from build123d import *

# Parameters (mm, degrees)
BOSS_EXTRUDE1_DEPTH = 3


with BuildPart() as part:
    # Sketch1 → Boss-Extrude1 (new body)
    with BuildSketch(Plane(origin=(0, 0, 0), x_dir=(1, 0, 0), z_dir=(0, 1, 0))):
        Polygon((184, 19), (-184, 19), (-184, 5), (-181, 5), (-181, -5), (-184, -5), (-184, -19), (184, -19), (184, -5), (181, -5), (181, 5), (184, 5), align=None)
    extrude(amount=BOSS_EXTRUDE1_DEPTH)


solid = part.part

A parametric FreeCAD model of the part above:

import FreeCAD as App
import Part
import Sketcher

V = App.Vector
Q = App.Units.Quantity

doc = App.newDocument("Part")
body = doc.addObject("PartDesign::Body", "Body")

# Sketch on XZ plane
sketch1 = doc.addObject("Sketcher::SketchObject", "Sketch")
body.addObject(sketch1)
sketch1.AttachmentSupport = (doc.XZ_Plane, [""])
sketch1.MapMode = "FlatFace"
sketch1.addGeometry(Part.LineSegment(V(184, -19, 0), V(-184, -19, 0)), False)
sketch1.addGeometry(Part.LineSegment(V(-184, -19, 0), V(-184, -5, 0)), False)
sketch1.addGeometry(Part.LineSegment(V(-184, -5, 0), V(-181, -5, 0)), False)
sketch1.addGeometry(Part.LineSegment(V(-181, -5, 0), V(-181, 5, 0)), False)
sketch1.addGeometry(Part.LineSegment(V(-181, 5, 0), V(-184, 5, 0)), False)
sketch1.addGeometry(Part.LineSegment(V(-184, 5, 0), V(-184, 19, 0)), False)
sketch1.addGeometry(Part.LineSegment(V(-184, 19, 0), V(184, 19, 0)), False)
sketch1.addGeometry(Part.LineSegment(V(184, 19, 0), V(184, 5, 0)), False)
sketch1.addGeometry(Part.LineSegment(V(184, 5, 0), V(181, 5, 0)), False)
sketch1.addGeometry(Part.LineSegment(V(181, 5, 0), V(181, -5, 0)), False)
sketch1.addGeometry(Part.LineSegment(V(181, -5, 0), V(184, -5, 0)), False)
sketch1.addGeometry(Part.LineSegment(V(184, -5, 0), V(184, -19, 0)), False)
sketch1.addConstraint(Sketcher.Constraint("Coincident", 0, 2, 1, 1))
sketch1.addConstraint(Sketcher.Constraint("Coincident", 1, 2, 2, 1))
sketch1.addConstraint(Sketcher.Constraint("Coincident", 2, 2, 3, 1))
sketch1.addConstraint(Sketcher.Constraint("Coincident", 3, 2, 4, 1))
sketch1.addConstraint(Sketcher.Constraint("Coincident", 4, 2, 5, 1))
sketch1.addConstraint(Sketcher.Constraint("Coincident", 5, 2, 6, 1))
sketch1.addConstraint(Sketcher.Constraint("Coincident", 6, 2, 7, 1))
sketch1.addConstraint(Sketcher.Constraint("Coincident", 7, 2, 8, 1))
sketch1.addConstraint(Sketcher.Constraint("Coincident", 8, 2, 9, 1))
sketch1.addConstraint(Sketcher.Constraint("Coincident", 9, 2, 10, 1))
sketch1.addConstraint(Sketcher.Constraint("Coincident", 10, 2, 11, 1))
sketch1.addConstraint(Sketcher.Constraint("Coincident", 11, 2, 0, 1))
sketch1.addConstraint(Sketcher.Constraint("Horizontal", 0))
sketch1.addConstraint(Sketcher.Constraint("Vertical", 1))
sketch1.addConstraint(Sketcher.Constraint("Horizontal", 2))
sketch1.addConstraint(Sketcher.Constraint("Vertical", 3))
sketch1.addConstraint(Sketcher.Constraint("Horizontal", 4))
sketch1.addConstraint(Sketcher.Constraint("Vertical", 5))
sketch1.addConstraint(Sketcher.Constraint("Horizontal", 6))
sketch1.addConstraint(Sketcher.Constraint("Vertical", 7))
sketch1.addConstraint(Sketcher.Constraint("Horizontal", 8))
sketch1.addConstraint(Sketcher.Constraint("Vertical", 9))
sketch1.addConstraint(Sketcher.Constraint("Horizontal", 10))
sketch1.addConstraint(Sketcher.Constraint("Vertical", 11))
sketch1.addConstraint(Sketcher.Constraint("Symmetric", 0, 2, 6, 2, -1, 1))
sketch1.addConstraint(Sketcher.Constraint("Symmetric", 2, 2, 8, 2, -1, 1))
sketch1.addConstraint(Sketcher.Constraint("Symmetric", 4, 2, 10, 2, -1, 1))
sketch1.addConstraint(Sketcher.Constraint("Symmetric", 4, 2, 7, 2, -2))
sketch1.addConstraint(Sketcher.Constraint("DistanceX", 0, 2, 0, 1, Q("368 mm")))
sketch1.addConstraint(Sketcher.Constraint("DistanceX", 2, 1, 2, 2, Q("3 mm")))
sketch1.addConstraint(Sketcher.Constraint("DistanceY", 1, 1, 1, 2, Q("14 mm")))
sketch1.addConstraint(Sketcher.Constraint("DistanceY", 3, 1, 3, 2, Q("10 mm")))
pad1 = doc.addObject("PartDesign::Pad", "Pad")
body.addObject(pad1)
pad1.Profile = sketch1
pad1.Length = 3
pad1.Reversed = True

doc.recompute()
